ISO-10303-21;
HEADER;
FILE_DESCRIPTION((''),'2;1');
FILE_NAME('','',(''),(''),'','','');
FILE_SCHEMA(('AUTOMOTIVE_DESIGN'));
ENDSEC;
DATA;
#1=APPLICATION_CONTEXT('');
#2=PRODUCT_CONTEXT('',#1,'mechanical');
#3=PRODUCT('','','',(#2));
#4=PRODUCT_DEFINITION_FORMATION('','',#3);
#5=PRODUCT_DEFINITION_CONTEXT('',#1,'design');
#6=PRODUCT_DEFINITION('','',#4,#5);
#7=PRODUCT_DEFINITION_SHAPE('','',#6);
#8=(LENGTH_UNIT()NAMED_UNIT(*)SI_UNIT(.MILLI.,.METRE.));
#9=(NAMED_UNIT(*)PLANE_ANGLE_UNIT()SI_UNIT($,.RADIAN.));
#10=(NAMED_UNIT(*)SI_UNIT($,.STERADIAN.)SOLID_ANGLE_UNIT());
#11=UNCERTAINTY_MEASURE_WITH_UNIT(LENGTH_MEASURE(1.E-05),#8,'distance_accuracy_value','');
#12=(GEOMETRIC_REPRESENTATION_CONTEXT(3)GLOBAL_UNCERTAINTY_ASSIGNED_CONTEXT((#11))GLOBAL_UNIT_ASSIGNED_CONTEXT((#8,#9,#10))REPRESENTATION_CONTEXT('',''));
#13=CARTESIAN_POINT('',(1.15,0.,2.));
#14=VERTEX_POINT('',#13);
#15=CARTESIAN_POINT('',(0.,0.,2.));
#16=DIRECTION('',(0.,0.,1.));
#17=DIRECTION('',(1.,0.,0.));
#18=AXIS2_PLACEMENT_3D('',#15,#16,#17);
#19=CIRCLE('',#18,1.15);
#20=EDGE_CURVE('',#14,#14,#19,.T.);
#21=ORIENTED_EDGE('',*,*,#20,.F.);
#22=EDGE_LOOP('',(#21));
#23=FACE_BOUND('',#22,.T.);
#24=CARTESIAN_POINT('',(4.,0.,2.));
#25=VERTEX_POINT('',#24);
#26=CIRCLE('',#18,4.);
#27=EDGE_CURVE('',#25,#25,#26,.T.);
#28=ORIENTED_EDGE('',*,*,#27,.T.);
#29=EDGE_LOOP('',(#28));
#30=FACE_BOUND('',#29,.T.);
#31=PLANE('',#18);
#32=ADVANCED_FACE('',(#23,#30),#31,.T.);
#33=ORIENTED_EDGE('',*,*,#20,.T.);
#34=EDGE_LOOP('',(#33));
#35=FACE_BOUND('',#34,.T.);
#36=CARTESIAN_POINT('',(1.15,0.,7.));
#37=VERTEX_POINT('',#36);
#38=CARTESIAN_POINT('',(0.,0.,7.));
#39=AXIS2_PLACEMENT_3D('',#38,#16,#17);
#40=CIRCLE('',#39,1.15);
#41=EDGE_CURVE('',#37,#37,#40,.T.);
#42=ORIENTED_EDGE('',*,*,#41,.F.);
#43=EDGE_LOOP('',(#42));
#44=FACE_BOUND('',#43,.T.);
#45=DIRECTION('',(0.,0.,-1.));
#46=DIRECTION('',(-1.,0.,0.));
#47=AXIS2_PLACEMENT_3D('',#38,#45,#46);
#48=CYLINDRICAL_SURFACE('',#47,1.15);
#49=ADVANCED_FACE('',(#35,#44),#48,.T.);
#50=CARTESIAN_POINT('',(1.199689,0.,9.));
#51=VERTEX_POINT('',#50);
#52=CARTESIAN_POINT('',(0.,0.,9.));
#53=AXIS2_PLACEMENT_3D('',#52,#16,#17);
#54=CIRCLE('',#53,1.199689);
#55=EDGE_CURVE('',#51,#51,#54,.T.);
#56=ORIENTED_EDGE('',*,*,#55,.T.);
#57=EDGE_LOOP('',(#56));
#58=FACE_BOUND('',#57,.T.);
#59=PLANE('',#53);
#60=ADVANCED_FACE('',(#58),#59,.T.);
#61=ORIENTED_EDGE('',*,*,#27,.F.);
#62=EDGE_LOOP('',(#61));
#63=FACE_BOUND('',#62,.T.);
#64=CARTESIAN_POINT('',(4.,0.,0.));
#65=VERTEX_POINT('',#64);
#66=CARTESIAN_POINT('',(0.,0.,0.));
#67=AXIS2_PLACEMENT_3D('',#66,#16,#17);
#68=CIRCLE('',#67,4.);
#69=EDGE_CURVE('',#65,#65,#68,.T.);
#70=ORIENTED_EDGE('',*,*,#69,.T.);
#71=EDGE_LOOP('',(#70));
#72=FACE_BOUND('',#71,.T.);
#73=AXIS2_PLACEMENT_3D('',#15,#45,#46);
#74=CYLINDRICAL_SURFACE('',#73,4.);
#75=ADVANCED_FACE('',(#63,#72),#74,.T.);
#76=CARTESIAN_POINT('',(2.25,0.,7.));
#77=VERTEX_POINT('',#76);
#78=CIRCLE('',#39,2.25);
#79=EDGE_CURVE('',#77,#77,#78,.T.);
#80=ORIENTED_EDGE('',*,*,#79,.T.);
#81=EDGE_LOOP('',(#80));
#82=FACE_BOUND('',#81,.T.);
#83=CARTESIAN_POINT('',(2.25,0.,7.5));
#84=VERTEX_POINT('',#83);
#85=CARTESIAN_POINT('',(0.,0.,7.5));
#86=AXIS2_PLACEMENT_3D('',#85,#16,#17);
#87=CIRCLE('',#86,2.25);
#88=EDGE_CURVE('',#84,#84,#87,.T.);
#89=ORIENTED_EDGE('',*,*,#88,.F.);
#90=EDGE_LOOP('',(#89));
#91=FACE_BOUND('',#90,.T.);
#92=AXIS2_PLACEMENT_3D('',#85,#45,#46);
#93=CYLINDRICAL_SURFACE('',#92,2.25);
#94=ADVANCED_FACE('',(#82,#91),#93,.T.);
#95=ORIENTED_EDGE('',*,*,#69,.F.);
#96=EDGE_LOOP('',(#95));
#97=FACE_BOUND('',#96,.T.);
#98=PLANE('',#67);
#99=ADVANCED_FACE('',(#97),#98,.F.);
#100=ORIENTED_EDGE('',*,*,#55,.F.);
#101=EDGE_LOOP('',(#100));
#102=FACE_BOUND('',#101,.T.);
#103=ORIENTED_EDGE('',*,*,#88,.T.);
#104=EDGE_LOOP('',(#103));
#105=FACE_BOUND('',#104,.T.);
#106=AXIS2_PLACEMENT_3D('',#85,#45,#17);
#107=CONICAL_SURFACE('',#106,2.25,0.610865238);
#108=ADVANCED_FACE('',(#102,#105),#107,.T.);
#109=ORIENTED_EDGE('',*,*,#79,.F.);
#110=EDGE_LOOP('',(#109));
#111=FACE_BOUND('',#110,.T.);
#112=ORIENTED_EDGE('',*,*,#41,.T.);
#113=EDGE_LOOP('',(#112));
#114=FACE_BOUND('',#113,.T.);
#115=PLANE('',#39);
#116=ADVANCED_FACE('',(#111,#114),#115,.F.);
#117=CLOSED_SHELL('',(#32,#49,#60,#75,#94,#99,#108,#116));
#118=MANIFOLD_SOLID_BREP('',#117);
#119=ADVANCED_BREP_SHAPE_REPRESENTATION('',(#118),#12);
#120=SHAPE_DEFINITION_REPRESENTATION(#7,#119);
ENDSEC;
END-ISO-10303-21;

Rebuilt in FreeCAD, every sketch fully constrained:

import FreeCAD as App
import Part
import Sketcher

V = App.Vector

doc = App.newDocument("Part")
body = doc.addObject("PartDesign::Body", "Body")

# Sketch on XY plane
sketch1 = body.newObject("Sketcher::SketchObject", "Sketch")
sketch1.AttachmentSupport = (doc.getObject("XY_Plane"), [""])
sketch1.MapMode = "FlatFace"
sketch1.addGeometry(Part.Circle(V(0, 0, 0), V(0, 0, 1), 4), False)
sketch1.addConstraint(Sketcher.Constraint("Coincident", 0, 3, -1, 1))
sketch1.addConstraint(Sketcher.Constraint("Diameter", 0, 8.0))
pad1 = body.newObject("PartDesign::Pad", "Pad")
pad1.Profile = sketch1
pad1.Length = 2

# Sketch on XY plane
sketch2 = body.newObject("Sketcher::SketchObject", "Sketch001")
sketch2.AttachmentSupport = (doc.getObject("XY_Plane"), [""])
sketch2.MapMode = "FlatFace"
sketch2.AttachmentOffset = App.Placement(V(0, 0, 2), App.Rotation())
sketch2.addGeometry(Part.Circle(V(0, 0, 0), V(0, 0, 1), 1.1), False)
sketch2.addConstraint(Sketcher.Constraint("Coincident", 0, 3, -1, 1))
sketch2.addConstraint(Sketcher.Constraint("Diameter", 0, 2.3))
pad2 = body.newObject("PartDesign::Pad", "Pad001")
pad2.Profile = sketch2
pad2.Length = 5

# Sketch on XY plane
sketch3 = body.newObject("Sketcher::SketchObject", "Sketch002")
sketch3.AttachmentSupport = (doc.getObject("XY_Plane"), [""])
sketch3.MapMode = "FlatFace"
sketch3.AttachmentOffset = App.Placement(V(0, 0, 7), App.Rotation())
sketch3.addGeometry(Part.Circle(V(0, 0, 0), V(0, 0, 1), 2.2), False)
sketch3.addConstraint(Sketcher.Constraint("Coincident", 0, 3, -1, 1))
sketch3.addConstraint(Sketcher.Constraint("Diameter", 0, 4.5))
pad3 = body.newObject("PartDesign::Pad", "Pad002")
pad3.Profile = sketch3
pad3.Length = 0.5

# Sketch on XY plane
sketch4 = body.newObject("Sketcher::SketchObject", "Sketch003")
sketch4.AttachmentSupport = (doc.getObject("XY_Plane"), [""])
sketch4.MapMode = "FlatFace"
sketch4.AttachmentOffset = App.Placement(V(0, 0, 7.5), App.Rotation())
sketch4.addGeometry(Part.Circle(V(0, 0, 0), V(0, 0, 1), 2.2), False)
sketch4.addConstraint(Sketcher.Constraint("Coincident", 0, 3, -1, 1))
sketch4.addConstraint(Sketcher.Constraint("Diameter", 0, 4.5))
pad4 = body.newObject("PartDesign::Pad", "Pad003")
pad4.Profile = sketch4
pad4.Length = 1.5
pad4.TaperAngle = -35

doc.recompute()
